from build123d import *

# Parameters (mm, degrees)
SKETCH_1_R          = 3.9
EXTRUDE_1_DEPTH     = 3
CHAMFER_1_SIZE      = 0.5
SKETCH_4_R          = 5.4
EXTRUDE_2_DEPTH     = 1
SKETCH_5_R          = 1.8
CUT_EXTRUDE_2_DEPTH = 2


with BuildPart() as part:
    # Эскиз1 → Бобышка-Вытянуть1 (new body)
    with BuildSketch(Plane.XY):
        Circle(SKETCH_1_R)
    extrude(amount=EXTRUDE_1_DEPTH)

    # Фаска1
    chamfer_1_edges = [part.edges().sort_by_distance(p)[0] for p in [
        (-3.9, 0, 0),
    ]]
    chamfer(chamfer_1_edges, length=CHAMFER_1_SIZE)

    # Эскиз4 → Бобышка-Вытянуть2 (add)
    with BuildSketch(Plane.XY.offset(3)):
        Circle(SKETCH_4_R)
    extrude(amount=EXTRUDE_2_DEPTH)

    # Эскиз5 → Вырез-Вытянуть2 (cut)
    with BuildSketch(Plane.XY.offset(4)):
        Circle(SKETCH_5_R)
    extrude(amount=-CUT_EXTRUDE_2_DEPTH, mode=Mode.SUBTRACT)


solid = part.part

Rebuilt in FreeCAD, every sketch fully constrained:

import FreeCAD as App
import Part
import Sketcher

V = App.Vector


def edges_at(feature, points):
    """Names of the edges that pass closest to the given points."""
    edges = feature.Shape.Edges
    near = lambda p: min(range(len(edges)), key=lambda i: edges[i].distToShape(Part.Vertex(*p))[0])
    return sorted({f"Edge{near(p) + 1}" for p in points})

doc = App.newDocument("Part")
params = doc.addObject("Spreadsheet::Sheet", "Params")
for row, (alias, value) in enumerate([
    ("sketch1_diameter", "7.8 mm"),
    ("pad1_length", "3 mm"),
    ("chamfer_size", "0.5 mm"),
    ("sketch2_diameter", "10.8 mm"),
    ("pad2_length", "1 mm"),
    ("sketch3_diameter", "3.6 mm"),
    ("pocket1_length", "2 mm"),
], start=1):
    params.set(f"A{row}", alias)
    params.set(f"B{row}", "=" + value)
    params.setAlias(f"B{row}", alias)

body = doc.addObject("PartDesign::Body", "Body")

sketch1 = doc.addObject("Sketcher::SketchObject", "Sketch")
body.addObject(sketch1)
sketch1.AttachmentSupport = (doc.XY_Plane, [""])
sketch1.MapMode = "FlatFace"
sketch1.addGeometry(Part.Circle(V(0, 0, 0), V(0, 0, 1), 3.9), False)
sketch1.addConstraint(Sketcher.Constraint("Coincident", 0, 3, -1, 1))
sketch1.addConstraint(Sketcher.Constraint("Diameter", 0, 7.8))
sketch1.setExpression("Constraints[1]", "Params.sketch1_diameter")
pad1 = doc.addObject("PartDesign::Pad", "Pad")
body.addObject(pad1)
pad1.Profile = sketch1
pad1.setExpression("Length", "Params.pad1_length")
doc.recompute()

chamfer = doc.addObject("PartDesign::Chamfer", "Chamfer")
body.addObject(chamfer)
chamfer.Base = (pad1, edges_at(pad1, [(-3.9, 0, 0)]))
chamfer.setExpression("Size", "Params.chamfer_size")

sketch2 = doc.addObject("Sketcher::SketchObject", "Sketch001")
body.addObject(sketch2)
sketch2.AttachmentSupport = (doc.XY_Plane, [""])
sketch2.MapMode = "FlatFace"
sketch2.AttachmentOffset = App.Placement(V(0, 0, 3), App.Rotation())
sketch2.addGeometry(Part.Circle(V(0, 0, 0), V(0, 0, 1), 5), False)
sketch2.addConstraint(Sketcher.Constraint("Coincident", 0, 3, -1, 1))
sketch2.addConstraint(Sketcher.Constraint("Diameter", 0, 10.8))
sketch2.setExpression("Constraints[1]", "Params.sketch2_diameter")
pad2 = doc.addObject("PartDesign::Pad", "Pad001")
body.addObject(pad2)
pad2.Profile = sketch2
pad2.setExpression("Length", "Params.pad2_length")

sketch3 = doc.addObject("Sketcher::SketchObject", "Sketch002")
body.addObject(sketch3)
sketch3.AttachmentSupport = (doc.XY_Plane, [""])
sketch3.MapMode = "FlatFace"
sketch3.AttachmentOffset = App.Placement(V(0, 0, 4), App.Rotation())
sketch3.addGeometry(Part.Circle(V(0, 0, 0), V(0, 0, 1), 1.8), False)
sketch3.addConstraint(Sketcher.Constraint("Coincident", 0, 3, -1, 1))
sketch3.addConstraint(Sketcher.Constraint("Diameter", 0, 3.6))
sketch3.setExpression("Constraints[1]", "Params.sketch3_diameter")
pocket1 = doc.addObject("PartDesign::Pocket", "Pocket")
body.addObject(pocket1)
pocket1.Profile = sketch3
pocket1.setExpression("Length", "Params.pocket1_length")

doc.recompute()
